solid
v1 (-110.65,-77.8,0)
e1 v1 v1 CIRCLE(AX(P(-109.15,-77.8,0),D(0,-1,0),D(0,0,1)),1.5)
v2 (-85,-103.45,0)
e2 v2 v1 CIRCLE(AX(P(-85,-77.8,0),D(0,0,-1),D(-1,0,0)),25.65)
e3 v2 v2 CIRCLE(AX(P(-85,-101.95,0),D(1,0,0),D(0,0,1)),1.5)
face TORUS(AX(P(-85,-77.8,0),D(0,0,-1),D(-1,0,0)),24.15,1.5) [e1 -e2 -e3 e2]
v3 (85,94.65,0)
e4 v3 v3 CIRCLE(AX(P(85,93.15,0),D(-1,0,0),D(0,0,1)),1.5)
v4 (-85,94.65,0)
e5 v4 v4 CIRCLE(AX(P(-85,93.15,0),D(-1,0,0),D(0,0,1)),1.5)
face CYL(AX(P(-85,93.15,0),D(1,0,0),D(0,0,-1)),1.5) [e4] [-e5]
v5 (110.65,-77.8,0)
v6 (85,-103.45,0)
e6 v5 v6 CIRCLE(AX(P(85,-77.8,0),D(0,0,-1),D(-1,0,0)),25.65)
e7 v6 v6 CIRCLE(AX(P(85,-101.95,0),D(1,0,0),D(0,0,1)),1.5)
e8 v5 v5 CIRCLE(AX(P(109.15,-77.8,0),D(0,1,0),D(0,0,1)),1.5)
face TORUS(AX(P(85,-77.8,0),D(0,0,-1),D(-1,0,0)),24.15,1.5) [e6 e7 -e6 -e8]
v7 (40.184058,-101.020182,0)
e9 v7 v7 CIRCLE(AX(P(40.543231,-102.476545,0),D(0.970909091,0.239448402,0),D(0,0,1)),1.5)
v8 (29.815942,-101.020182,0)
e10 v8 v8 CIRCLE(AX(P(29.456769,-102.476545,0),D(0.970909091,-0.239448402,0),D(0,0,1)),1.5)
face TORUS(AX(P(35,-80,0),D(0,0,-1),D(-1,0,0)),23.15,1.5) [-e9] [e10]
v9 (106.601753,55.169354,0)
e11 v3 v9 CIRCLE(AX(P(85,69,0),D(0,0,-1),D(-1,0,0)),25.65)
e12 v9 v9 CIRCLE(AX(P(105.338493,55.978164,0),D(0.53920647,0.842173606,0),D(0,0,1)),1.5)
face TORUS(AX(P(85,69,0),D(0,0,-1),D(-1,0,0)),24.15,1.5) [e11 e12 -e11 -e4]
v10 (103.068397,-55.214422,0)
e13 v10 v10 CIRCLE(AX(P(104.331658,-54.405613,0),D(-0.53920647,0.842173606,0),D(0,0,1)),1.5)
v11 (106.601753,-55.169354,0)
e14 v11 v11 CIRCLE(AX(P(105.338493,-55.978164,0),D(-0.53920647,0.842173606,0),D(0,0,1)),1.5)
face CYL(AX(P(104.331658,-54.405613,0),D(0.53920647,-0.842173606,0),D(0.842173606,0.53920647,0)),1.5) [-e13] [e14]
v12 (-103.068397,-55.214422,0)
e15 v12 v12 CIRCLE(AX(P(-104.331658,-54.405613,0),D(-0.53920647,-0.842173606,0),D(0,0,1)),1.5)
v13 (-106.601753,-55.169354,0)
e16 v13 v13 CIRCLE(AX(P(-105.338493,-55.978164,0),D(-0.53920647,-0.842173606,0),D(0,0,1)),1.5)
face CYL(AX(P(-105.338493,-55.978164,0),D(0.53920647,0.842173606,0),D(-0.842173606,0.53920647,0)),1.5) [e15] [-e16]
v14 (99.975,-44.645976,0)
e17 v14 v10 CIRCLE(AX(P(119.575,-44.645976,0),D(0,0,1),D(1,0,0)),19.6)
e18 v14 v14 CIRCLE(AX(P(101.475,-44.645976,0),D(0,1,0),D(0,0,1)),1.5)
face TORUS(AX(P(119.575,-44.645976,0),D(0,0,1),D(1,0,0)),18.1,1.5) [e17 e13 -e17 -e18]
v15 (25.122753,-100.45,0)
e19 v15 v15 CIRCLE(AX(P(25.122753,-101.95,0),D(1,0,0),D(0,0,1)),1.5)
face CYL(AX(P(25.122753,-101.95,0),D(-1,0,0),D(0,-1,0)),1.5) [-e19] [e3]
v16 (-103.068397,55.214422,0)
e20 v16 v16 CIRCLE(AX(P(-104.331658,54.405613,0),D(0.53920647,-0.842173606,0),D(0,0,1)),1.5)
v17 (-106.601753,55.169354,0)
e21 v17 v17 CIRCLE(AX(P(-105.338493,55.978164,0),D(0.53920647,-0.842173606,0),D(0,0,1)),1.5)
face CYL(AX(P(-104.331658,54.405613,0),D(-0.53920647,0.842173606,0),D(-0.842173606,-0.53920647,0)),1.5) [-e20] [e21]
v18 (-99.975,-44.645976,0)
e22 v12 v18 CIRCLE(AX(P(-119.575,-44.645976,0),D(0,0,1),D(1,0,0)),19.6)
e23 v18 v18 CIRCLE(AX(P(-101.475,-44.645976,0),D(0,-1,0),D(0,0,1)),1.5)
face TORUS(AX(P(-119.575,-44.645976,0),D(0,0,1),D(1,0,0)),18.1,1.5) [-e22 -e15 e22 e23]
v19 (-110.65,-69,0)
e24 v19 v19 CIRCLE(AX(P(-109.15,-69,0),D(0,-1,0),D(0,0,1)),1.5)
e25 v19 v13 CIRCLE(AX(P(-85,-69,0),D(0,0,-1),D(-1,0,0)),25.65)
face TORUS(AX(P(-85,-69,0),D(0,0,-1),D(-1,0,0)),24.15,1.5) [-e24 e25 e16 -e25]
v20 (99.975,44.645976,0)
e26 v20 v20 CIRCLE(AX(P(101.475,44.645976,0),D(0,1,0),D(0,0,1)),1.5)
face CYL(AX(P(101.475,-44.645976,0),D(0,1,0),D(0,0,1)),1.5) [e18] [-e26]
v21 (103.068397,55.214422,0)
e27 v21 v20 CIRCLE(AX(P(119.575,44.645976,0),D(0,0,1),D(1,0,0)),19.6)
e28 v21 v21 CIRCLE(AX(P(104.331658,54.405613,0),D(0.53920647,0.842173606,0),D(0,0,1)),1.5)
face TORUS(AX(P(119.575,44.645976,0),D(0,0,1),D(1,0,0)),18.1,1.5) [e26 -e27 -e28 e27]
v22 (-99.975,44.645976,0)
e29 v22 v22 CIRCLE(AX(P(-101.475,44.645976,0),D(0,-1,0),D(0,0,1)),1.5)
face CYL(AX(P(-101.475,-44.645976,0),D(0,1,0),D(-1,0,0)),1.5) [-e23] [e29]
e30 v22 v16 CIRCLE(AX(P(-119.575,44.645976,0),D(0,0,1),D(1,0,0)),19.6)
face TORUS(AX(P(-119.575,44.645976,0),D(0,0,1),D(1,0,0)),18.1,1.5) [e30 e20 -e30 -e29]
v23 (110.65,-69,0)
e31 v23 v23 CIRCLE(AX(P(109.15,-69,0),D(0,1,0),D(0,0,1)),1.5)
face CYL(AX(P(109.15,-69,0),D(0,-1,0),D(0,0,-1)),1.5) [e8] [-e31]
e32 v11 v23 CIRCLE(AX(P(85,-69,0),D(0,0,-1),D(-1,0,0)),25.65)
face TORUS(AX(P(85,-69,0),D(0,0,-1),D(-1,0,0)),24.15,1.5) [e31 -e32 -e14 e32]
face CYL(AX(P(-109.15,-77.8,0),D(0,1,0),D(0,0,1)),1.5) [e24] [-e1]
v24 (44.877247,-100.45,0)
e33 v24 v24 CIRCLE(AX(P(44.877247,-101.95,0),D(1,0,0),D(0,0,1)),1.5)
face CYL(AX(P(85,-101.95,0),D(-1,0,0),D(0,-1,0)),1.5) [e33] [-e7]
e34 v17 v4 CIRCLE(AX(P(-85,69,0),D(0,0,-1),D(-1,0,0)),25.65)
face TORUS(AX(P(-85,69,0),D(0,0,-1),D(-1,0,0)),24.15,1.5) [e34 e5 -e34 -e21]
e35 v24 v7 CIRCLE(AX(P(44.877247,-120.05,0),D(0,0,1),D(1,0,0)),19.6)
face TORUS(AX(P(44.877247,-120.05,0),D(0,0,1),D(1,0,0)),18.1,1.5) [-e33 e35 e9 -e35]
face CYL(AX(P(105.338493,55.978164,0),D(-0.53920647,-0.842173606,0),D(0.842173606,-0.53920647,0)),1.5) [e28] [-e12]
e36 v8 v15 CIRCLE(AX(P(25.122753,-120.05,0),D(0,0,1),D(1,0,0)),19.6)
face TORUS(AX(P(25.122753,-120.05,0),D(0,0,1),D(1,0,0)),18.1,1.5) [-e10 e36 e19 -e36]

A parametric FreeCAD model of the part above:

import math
import FreeCAD as App
import Part
import Sketcher

V = App.Vector

doc = App.newDocument("Part")
params = doc.addObject("Spreadsheet::Sheet", "Params")
for row, (alias, value) in enumerate([
    ("sketch1_diameter", "3 mm"),
    ("sketch2_radius", "18.1 mm"),
    ("sketch2_width", "170 mm"),
    ("sketch2_radius2", "24.15 mm"),
    ("sketch2_radius3", "23.15 mm"),
    ("sketch2_height", "8.8 mm"),
], start=1):
    params.set(f"A{row}", alias)
    params.set(f"B{row}", "=" + value)
    params.setAlias(f"B{row}", alias)

body = doc.addObject("PartDesign::Body", "Body")

# Sketch on XZ plane
sketch1 = body.newObject("Sketcher::SketchObject", "Sketch")
sketch1.AttachmentSupport = (doc.getObject("XZ_Plane"), [""])
sketch1.MapMode = "FlatFace"
sketch1.addGeometry(Part.Circle(V(101.5, 0, 0), V(0, 0, 1), 1.5), False)
sketch1.addConstraint([
    Sketcher.Constraint("PointOnObject", 0, 3, -1),
    Sketcher.Constraint("Diameter", 0, 3.0),
    Sketcher.Constraint("DistanceX", -1, 1, 0, 3, 101.475),
])
sketch1.setExpression("Constraints[1]", "Params.sketch1_diameter")

# Sketch on XY plane
sketch2 = body.newObject("Sketcher::SketchObject", "Sketch001")
sketch2.AttachmentSupport = (doc.getObject("XY_Plane"), [""])
sketch2.MapMode = "FlatFace"
sketch2.addGeometry([
    Part.LineSegment(V(105.3, -56, 0), V(104.3, -54.4, 0)),  # 0
    Part.ArcOfCircle(Part.Circle(V(119.6, -44.6, 0), V(0, 0, 1), 18.1), math.radians(180), math.radians(213)),  # 1
    Part.LineSegment(V(101.5, -44.6, 0), V(101.5, 44.6, 0)),  # 2
    Part.ArcOfCircle(Part.Circle(V(119.6, 44.6, 0), V(0, 0, 1), 18.1), math.radians(147), math.radians(180)),  # 3
    Part.LineSegment(V(104.3, 54.4, 0), V(105.3, 56, 0)),  # 4
    Part.ArcOfCircle(Part.Circle(V(85, 69, 0), V(0, 0, 1), 24.1), math.radians(-33), math.radians(90)),  # 5
    Part.LineSegment(V(85, 93.2, 0), V(-85, 93.2, 0)),  # 6
    Part.ArcOfCircle(Part.Circle(V(-85, 69, 0), V(0, 0, 1), 24.1), math.radians(90), math.radians(213)),  # 7
    Part.LineSegment(V(-105.3, 56, 0), V(-104.3, 54.4, 0)),  # 8
    Part.ArcOfCircle(Part.Circle(V(-119.6, 44.6, 0), V(0, 0, 1), 18.1), math.radians(0), math.radians(33)),  # 9
    Part.LineSegment(V(-101.5, 44.6, 0), V(-101.5, -44.6, 0)),  # 10
    Part.ArcOfCircle(Part.Circle(V(-119.6, -44.6, 0), V(0, 0, 1), 18.1), math.radians(-33), math.radians(0)),  # 11
    Part.LineSegment(V(-104.3, -54.4, 0), V(-105.3, -56, 0)),  # 12
    Part.ArcOfCircle(Part.Circle(V(-85, -69, 0), V(0, 0, 1), 24.1), math.radians(147), math.radians(180)),  # 13
    Part.LineSegment(V(-109.2, -69, 0), V(-109.2, -77.8, 0)),  # 14
    Part.ArcOfCircle(Part.Circle(V(-85, -77.8, 0), V(0, 0, 1), 24.1), math.radians(180), math.radians(270)),  # 15
    Part.LineSegment(V(-85, -102, 0), V(25.1, -102, 0)),  # 16
    Part.ArcOfCircle(Part.Circle(V(25.1, -120.1, 0), V(0, 0, 1), 18.1), math.radians(76.15), math.radians(90)),  # 17
    Part.ArcOfCircle(Part.Circle(V(35, -80, 0), V(0, 0, 1), 23.2), math.radians(-104), math.radians(-76)),  # 18
    Part.ArcOfCircle(Part.Circle(V(44.9, -120.1, 0), V(0, 0, 1), 18.1), math.radians(90), math.radians(103.85)),  # 19
    Part.LineSegment(V(44.9, -102, 0), V(85, -102, 0)),  # 20
    Part.ArcOfCircle(Part.Circle(V(85, -77.8, 0), V(0, 0, 1), 24.1), math.radians(-90), math.radians(0)),  # 21
    Part.LineSegment(V(109.2, -77.8, 0), V(109.2, -69, 0)),  # 22
    Part.ArcOfCircle(Part.Circle(V(85, -69, 0), V(0, 0, 1), 24.1), math.radians(0), math.radians(33)),  # 23
], False)
sketch2.addConstraint([
    Sketcher.Constraint("Tangent", 0, 2, 1, 2),
    Sketcher.Constraint("Tangent", 1, 1, 2, 1),
    Sketcher.Constraint("Tangent", 2, 2, 3, 2),
    Sketcher.Constraint("Tangent", 3, 1, 4, 1),
    Sketcher.Constraint("Tangent", 4, 2, 5, 1),
    Sketcher.Constraint("Tangent", 5, 2, 6, 1),
    Sketcher.Constraint("Tangent", 6, 2, 7, 1),
    Sketcher.Constraint("Tangent", 7, 2, 8, 1),
    Sketcher.Constraint("Tangent", 8, 2, 9, 2),
    Sketcher.Constraint("Tangent", 9, 1, 10, 1),
    Sketcher.Constraint("Tangent", 10, 2, 11, 2),
    Sketcher.Constraint("Tangent", 11, 1, 12, 1),
    Sketcher.Constraint("Tangent", 12, 2, 13, 1),
    Sketcher.Constraint("Tangent", 13, 2, 14, 1),
    Sketcher.Constraint("Tangent", 14, 2, 15, 1),
    Sketcher.Constraint("Tangent", 15, 2, 16, 1),
    Sketcher.Constraint("Tangent", 16, 2, 17, 2),
    Sketcher.Constraint("Tangent", 17, 1, 18, 1),
    Sketcher.Constraint("Tangent", 18, 2, 19, 2),
    Sketcher.Constraint("Tangent", 19, 1, 20, 1),
    Sketcher.Constraint("Tangent", 20, 2, 21, 1),
    Sketcher.Constraint("Tangent", 21, 2, 22, 1),
    Sketcher.Constraint("Tangent", 22, 2, 23, 1),
    Sketcher.Constraint("Tangent", 23, 2, 0, 1),
    Sketcher.Constraint("Vertical", 2),
    Sketcher.Constraint("Horizontal", 6),
    Sketcher.Constraint("Vertical", 10),
    Sketcher.Constraint("Vertical", 14),
    Sketcher.Constraint("Horizontal", 16),
    Sketcher.Constraint("Horizontal", 20),
    Sketcher.Constraint("Vertical", 22),
    Sketcher.Constraint("Equal", 1, 3),
    Sketcher.Constraint("Equal", 5, 7),
    Sketcher.Constraint("Equal", 3, 9),
    Sketcher.Constraint("Equal", 9, 11),
    Sketcher.Constraint("Equal", 7, 13),
    Sketcher.Constraint("Equal", 13, 15),
    Sketcher.Constraint("Equal", 11, 17),
    Sketcher.Constraint("Equal", 17, 19),
    Sketcher.Constraint("Equal", 15, 21),
    Sketcher.Constraint("Equal", 21, 23),
    Sketcher.Constraint("Symmetric", 1, 3, 9, 3, -1, 1),
    Sketcher.Constraint("Symmetric", 5, 3, 13, 3, -1, 1),
    Sketcher.Constraint("Symmetric", 7, 3, 23, 3, -1, 1),
    Sketcher.Constraint("Symmetric", 15, 3, 21, 3, -2),
    Sketcher.Constraint("Parallel", 4, 12),
    Sketcher.Constraint("Horizontal", 3, 3, 9, 3),
    Sketcher.Constraint("Radius", 1, 18.1),
    Sketcher.Constraint("DistanceX", 6, 2, 6, 1, 170.0),
    Sketcher.Constraint("Radius", 5, 24.15),
    Sketcher.Constraint("Radius", 18, 23.15),
    Sketcher.Constraint("DistanceY", 14, 2, 14, 1, 8.8),
    Sketcher.Constraint("DistanceY", -1, 1, 5, 3, 69.0),
    Sketcher.Constraint("DistanceX", -1, 1, 18, 3, 35.0),
    Sketcher.Constraint("DistanceY", 18, 3, -1, 1, 80.0),
    Sketcher.Constraint("DistanceX", 9, 3, 3, 3, 239.15),
    Sketcher.Constraint("DistanceY", 2, 1, 2, 2, 89.291951),
])
sketch2.setExpression("Constraints[47]", "Params.sketch2_radius")
sketch2.setExpression("Constraints[48]", "Params.sketch2_width")
sketch2.setExpression("Constraints[49]", "Params.sketch2_radius2")
sketch2.setExpression("Constraints[50]", "Params.sketch2_radius3")
sketch2.setExpression("Constraints[51]", "Params.sketch2_height")
doc.recompute()

additivepipe = body.newObject("PartDesign::AdditivePipe", "AdditivePipe")
additivepipe.Profile = sketch1
additivepipe.Spine = (sketch2, ["Edge1", "Edge2", "Edge3", "Edge4", "Edge5", "Edge6", "Edge7", "Edge8", "Edge9", "Edge10", "Edge11", "Edge12", "Edge13", "Edge14", "Edge15", "Edge16", "Edge17", "Edge18", "Edge19", "Edge20", "Edge21", "Edge22", "Edge23", "Edge24"])

doc.recompute()
